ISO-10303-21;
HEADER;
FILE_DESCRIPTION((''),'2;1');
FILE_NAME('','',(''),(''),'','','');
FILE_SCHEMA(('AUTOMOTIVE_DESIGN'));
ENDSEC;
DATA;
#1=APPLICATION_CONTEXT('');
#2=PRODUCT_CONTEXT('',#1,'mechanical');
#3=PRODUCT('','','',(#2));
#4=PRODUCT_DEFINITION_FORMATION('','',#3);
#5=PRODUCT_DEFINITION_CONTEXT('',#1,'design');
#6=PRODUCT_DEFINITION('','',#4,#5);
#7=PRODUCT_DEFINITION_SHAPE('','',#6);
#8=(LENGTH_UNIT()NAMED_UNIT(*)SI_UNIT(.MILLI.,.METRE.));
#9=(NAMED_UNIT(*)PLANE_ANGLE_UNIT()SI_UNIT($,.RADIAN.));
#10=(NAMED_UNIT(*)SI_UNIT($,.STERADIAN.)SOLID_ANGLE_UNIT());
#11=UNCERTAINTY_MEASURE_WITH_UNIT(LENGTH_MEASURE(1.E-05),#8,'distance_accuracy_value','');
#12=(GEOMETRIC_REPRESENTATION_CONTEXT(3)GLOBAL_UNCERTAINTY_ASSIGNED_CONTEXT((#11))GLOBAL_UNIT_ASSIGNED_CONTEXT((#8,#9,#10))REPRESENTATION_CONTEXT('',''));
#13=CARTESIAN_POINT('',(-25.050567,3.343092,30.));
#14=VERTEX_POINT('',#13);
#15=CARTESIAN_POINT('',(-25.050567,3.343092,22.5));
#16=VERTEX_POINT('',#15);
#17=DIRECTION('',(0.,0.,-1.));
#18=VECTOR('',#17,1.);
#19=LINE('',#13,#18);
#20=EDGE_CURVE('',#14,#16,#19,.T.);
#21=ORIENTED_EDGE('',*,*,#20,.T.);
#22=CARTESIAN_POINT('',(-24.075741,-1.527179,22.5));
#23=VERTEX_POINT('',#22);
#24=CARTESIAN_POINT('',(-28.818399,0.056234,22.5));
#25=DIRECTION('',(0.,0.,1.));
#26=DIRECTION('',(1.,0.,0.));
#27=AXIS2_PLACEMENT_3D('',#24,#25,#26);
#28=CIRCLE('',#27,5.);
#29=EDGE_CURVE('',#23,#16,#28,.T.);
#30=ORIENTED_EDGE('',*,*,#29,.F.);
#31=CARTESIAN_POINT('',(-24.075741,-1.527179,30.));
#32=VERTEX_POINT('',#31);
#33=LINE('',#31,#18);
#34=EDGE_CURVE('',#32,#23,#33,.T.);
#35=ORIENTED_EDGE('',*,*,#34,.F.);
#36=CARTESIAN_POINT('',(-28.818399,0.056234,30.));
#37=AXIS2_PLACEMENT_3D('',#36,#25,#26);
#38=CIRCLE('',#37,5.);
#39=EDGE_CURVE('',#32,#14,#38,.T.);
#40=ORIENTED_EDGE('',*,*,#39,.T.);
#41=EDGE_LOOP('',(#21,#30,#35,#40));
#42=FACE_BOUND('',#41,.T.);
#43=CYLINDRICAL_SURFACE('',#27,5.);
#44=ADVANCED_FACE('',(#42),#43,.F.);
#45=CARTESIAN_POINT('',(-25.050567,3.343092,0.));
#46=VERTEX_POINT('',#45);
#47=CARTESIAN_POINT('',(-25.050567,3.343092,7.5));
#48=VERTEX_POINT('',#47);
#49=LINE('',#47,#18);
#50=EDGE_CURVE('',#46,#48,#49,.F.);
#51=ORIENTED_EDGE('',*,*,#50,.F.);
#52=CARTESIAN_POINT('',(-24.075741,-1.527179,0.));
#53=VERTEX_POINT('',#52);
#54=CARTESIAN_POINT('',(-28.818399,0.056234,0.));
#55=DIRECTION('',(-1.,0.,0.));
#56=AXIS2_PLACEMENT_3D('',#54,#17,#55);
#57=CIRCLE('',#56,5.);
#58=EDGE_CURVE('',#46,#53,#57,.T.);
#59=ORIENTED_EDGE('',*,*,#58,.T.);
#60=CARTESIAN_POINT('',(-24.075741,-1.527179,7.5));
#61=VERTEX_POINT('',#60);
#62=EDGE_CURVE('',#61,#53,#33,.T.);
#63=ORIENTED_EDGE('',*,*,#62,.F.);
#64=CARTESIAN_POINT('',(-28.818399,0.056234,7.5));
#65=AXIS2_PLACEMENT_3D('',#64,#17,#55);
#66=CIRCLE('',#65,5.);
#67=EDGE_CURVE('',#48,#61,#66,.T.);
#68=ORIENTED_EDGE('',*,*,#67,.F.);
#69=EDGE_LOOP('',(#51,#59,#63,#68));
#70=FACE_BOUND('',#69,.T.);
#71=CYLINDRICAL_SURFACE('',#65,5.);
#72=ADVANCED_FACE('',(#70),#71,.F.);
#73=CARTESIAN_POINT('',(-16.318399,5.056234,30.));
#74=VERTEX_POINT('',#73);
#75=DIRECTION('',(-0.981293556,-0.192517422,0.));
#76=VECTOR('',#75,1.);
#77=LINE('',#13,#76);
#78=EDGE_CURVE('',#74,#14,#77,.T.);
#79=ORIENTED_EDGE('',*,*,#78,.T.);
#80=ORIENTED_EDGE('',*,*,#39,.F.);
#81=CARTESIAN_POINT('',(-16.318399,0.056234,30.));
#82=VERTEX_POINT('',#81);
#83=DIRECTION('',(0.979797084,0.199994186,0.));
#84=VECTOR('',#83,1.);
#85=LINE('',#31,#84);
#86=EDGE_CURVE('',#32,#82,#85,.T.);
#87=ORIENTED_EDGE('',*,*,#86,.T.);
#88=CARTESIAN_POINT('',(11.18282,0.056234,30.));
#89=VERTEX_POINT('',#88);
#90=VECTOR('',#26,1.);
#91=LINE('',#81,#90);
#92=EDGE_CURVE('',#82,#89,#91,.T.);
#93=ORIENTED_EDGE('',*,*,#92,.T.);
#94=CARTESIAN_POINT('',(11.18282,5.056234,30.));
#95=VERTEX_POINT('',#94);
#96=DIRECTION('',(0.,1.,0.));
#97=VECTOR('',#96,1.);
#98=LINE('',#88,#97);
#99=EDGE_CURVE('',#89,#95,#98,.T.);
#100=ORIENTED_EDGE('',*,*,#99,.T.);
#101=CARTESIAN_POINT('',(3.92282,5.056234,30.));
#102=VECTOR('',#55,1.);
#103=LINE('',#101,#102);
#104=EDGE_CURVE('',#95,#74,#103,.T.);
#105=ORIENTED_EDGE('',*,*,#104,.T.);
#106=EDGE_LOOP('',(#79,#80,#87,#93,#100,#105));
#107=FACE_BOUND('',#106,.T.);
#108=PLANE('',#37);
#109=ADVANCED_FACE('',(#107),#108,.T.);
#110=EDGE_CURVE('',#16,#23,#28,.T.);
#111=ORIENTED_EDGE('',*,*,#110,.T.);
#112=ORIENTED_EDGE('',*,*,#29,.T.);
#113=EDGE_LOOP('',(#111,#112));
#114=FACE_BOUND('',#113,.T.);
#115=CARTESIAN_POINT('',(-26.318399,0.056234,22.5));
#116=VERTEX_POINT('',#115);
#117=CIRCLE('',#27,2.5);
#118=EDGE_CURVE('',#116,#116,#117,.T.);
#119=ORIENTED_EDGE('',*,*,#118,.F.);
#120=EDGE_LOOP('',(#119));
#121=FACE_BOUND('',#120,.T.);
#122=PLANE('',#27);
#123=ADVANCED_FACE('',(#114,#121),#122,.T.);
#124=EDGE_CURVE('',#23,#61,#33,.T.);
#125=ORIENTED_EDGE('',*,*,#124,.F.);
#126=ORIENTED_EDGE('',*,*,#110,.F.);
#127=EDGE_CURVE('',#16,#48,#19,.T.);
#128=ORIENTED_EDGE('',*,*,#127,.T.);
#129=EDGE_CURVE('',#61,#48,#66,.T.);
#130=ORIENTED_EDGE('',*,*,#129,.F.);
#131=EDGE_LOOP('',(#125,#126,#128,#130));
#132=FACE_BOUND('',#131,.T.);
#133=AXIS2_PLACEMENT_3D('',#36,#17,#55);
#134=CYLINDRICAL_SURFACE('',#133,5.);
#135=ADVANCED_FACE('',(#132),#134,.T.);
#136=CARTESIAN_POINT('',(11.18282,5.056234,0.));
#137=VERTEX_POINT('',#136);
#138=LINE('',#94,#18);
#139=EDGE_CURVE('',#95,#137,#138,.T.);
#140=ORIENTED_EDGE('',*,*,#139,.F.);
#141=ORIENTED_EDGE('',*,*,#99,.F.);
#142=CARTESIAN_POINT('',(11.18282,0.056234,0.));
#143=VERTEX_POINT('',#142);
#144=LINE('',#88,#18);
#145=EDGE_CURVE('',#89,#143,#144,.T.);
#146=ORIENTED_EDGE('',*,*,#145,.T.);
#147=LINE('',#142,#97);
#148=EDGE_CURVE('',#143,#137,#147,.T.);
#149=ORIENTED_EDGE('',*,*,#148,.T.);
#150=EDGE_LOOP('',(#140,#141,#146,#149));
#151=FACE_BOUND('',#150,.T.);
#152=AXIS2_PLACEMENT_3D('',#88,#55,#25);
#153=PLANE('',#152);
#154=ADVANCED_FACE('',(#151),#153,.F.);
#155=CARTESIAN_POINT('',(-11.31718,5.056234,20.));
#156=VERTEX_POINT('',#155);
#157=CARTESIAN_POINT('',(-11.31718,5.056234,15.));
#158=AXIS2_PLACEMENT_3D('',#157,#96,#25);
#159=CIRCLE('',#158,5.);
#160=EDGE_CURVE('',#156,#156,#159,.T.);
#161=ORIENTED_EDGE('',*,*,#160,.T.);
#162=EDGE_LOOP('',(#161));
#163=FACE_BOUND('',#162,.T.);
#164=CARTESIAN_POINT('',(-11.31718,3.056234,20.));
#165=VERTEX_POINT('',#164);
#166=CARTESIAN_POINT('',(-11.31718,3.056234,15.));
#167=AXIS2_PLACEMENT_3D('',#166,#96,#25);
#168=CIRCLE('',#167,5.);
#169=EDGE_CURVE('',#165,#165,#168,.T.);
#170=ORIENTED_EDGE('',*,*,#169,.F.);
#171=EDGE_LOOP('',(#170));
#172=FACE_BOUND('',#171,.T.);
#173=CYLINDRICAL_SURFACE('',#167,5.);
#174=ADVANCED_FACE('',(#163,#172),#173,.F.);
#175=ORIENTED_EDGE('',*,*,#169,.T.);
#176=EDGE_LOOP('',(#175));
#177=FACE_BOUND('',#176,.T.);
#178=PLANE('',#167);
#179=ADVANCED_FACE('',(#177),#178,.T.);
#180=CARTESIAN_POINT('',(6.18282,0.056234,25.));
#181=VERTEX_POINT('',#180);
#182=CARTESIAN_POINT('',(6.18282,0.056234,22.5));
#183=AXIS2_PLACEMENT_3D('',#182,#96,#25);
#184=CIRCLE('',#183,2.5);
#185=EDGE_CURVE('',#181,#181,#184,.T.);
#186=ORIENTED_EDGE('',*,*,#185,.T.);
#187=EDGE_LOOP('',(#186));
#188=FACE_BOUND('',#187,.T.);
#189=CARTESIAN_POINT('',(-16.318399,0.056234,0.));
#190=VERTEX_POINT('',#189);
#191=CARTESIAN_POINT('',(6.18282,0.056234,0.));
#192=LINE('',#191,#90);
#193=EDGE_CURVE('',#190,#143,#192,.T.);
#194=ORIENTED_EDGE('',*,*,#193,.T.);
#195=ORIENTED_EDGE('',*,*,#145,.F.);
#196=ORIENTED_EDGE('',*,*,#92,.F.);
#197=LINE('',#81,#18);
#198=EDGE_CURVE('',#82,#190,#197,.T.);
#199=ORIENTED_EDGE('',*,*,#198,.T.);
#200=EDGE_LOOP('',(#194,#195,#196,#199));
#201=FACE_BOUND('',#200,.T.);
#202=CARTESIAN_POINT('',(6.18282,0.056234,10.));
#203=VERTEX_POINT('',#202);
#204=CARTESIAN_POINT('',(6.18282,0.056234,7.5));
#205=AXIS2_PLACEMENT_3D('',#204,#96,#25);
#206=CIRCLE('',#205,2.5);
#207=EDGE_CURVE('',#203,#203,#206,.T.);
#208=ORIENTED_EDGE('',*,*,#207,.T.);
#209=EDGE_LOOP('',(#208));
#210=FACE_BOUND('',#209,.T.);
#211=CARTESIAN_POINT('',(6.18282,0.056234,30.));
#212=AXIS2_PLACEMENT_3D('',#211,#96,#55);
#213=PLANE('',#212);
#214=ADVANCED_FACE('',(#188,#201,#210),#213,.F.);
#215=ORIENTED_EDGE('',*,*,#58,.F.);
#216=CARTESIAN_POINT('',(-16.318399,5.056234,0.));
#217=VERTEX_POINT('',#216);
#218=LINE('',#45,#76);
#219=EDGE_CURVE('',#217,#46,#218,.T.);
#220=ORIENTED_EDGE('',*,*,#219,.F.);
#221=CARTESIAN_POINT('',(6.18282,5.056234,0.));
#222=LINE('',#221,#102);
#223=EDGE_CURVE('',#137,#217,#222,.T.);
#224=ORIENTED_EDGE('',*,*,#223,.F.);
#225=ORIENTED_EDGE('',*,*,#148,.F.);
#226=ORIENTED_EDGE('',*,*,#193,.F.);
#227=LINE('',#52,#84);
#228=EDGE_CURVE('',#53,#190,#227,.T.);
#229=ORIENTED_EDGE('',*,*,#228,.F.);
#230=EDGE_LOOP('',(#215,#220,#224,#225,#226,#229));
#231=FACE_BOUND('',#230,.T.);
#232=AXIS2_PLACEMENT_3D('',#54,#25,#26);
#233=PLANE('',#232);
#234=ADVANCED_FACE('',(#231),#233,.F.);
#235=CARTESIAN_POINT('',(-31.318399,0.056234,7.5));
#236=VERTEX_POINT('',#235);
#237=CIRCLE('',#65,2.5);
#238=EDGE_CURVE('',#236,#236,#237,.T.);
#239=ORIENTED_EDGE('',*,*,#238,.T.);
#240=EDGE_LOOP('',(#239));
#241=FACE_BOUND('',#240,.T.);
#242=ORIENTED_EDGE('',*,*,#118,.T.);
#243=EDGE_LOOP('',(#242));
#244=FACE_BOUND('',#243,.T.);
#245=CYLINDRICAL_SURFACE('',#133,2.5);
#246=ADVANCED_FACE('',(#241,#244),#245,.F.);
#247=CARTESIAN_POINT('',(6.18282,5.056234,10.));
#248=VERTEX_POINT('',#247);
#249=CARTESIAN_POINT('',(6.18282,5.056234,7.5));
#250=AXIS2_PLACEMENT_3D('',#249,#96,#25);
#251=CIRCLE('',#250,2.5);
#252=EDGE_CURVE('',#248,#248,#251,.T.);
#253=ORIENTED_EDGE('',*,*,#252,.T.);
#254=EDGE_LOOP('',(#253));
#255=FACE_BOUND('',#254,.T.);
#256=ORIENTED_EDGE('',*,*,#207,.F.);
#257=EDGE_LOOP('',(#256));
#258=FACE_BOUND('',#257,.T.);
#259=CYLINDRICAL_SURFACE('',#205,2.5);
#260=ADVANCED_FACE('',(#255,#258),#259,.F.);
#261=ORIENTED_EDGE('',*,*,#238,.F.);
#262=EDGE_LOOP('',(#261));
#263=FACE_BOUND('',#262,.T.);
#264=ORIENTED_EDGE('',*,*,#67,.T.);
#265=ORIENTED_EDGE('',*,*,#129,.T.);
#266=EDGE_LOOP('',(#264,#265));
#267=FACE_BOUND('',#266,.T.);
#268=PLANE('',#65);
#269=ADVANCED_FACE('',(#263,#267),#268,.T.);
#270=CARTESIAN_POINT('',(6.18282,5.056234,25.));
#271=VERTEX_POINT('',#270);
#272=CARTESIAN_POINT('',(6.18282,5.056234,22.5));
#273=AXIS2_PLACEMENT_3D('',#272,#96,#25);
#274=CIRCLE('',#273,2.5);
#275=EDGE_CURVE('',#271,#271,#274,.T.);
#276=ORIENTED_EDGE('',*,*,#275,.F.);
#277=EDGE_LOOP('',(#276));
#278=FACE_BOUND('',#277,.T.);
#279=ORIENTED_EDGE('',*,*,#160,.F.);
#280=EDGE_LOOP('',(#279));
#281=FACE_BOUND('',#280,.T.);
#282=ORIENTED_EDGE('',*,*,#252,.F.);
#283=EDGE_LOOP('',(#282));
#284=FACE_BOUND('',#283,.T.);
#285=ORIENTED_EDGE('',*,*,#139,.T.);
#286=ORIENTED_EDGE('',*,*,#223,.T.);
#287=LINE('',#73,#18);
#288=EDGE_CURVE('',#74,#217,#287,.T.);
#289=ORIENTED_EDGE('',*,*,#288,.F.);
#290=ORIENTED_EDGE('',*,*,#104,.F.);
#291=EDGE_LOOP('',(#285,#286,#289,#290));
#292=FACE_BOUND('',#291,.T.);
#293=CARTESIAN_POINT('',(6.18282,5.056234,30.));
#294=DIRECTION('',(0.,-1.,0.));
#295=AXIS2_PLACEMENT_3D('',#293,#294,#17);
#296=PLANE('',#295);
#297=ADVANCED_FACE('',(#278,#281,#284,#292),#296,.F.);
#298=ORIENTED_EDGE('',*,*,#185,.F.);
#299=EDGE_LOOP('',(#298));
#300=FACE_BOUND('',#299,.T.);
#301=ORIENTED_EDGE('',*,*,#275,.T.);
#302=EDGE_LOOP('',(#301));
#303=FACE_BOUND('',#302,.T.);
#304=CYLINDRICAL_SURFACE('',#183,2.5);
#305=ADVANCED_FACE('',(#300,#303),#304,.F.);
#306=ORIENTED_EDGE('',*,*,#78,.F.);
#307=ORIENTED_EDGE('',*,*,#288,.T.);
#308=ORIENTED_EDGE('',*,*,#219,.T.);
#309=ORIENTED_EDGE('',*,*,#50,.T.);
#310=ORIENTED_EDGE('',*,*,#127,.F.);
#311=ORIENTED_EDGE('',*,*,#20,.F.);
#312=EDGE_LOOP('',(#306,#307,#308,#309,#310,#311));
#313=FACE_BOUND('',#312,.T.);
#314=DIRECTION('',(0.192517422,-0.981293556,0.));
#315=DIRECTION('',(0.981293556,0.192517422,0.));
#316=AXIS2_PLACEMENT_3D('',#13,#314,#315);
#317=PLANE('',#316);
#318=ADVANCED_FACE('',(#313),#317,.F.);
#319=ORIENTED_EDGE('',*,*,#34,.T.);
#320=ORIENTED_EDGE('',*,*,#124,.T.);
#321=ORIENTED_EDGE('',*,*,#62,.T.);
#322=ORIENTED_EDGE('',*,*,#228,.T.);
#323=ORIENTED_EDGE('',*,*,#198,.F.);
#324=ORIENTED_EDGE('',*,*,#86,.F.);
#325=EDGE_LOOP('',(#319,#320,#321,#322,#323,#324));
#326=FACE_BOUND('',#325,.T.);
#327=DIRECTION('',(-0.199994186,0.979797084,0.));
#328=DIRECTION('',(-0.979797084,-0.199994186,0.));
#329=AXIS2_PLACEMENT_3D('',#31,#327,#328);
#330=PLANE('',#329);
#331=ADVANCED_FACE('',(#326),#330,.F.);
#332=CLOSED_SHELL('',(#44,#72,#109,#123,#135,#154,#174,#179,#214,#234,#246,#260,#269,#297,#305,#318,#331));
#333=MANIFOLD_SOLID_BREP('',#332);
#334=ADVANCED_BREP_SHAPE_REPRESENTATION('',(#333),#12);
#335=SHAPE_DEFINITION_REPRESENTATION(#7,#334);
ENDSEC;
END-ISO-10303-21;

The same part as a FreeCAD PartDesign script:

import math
import FreeCAD as App
import Part
import Sketcher

V = App.Vector

doc = App.newDocument("Part")
body = doc.addObject("PartDesign::Body", "Body")

sketch1 = body.newObject("Sketcher::SketchObject", "Sketch")
sketch1.AttachmentSupport = (doc.getObject("XY_Plane"), [""])
sketch1.MapMode = "FlatFace"
sketch1.addGeometry([
    Part.LineSegment(V(-16.318, 5.056, 0), V(-25.051, 3.343, 0)),
    Part.ArcOfCircle(Part.Circle(V(-28.818, 0.056, 0), V(0, 0, 1), 5), math.radians(41), math.radians(342)),
    Part.LineSegment(V(-24.076, -1.527, 0), V(-16.318, 0.056, 0)),
    Part.LineSegment(V(-16.318, 0.056, 0), V(11.183, 0.056, 0)),
    Part.LineSegment(V(11.183, 0.056, 0), V(11.183, 5.056, 0)),
    Part.LineSegment(V(11.183, 5.056, 0), V(-16.318, 5.056, 0)),
    Part.LineSegment(V(-28.337, -2.397, 0), V(-28.3, -2.389, 0)),
    Part.ArcOfCircle(Part.Circle(V(-28.818, 0.056, 0), V(0, 0, 1), 2.5), math.radians(-78.9), math.radians(-78.03)),
], False)
sketch1.addConstraint([
    Sketcher.Constraint("Coincident", 0, 2, 1, 1),
    Sketcher.Constraint("Coincident", 1, 2, 2, 1),
    Sketcher.Constraint("Coincident", 2, 2, 3, 1),
    Sketcher.Constraint("Coincident", 3, 2, 4, 1),
    Sketcher.Constraint("Coincident", 4, 2, 5, 1),
    Sketcher.Constraint("Coincident", 5, 2, 0, 1),
    Sketcher.Constraint("Coincident", 6, 1, 7, 1),
    Sketcher.Constraint("Coincident", 7, 2, 6, 2),
    Sketcher.Constraint("Horizontal", 3),
    Sketcher.Constraint("Vertical", 4),
    Sketcher.Constraint("Horizontal", 5),
    Sketcher.Constraint("Coincident", 7, 3, 1, 3),
    Sketcher.Constraint("Parallel", 2, 6),
    Sketcher.Constraint("Horizontal", 7, 3, 2, 2),
    Sketcher.Constraint("Vertical", 2, 2, 5, 2),
    Sketcher.Constraint("Radius", 1, 5.0),
    Sketcher.Constraint("Radius", 7, 2.499999),
    Sketcher.Constraint("DistanceY", 4, 1, 4, 2, 5.0),
    Sketcher.Constraint("DistanceX", 7, 3, 2, 2, 12.5),
    Sketcher.Constraint("DistanceY", 6, 1, -1, 1, 2.397),
    Sketcher.Constraint("DistanceX", 3, 1, 3, 2, 27.501219),
    Sketcher.Constraint("DistanceX", 1, 3, -1, 1, 28.818399),
    Sketcher.Constraint("Distance", 0, 8.89863),
    Sketcher.Constraint("DistanceX", 1, 2, -1, 1, 24.075741),
    Sketcher.Constraint("DistanceY", 1, 2, -1, 1, 1.527179),
])
pad1 = body.newObject("PartDesign::Pad", "Pad")
pad1.Profile = sketch1
pad1.Length = 30

sketch2 = body.newObject("Sketcher::SketchObject", "Sketch001")
sketch2.AttachmentSupport = (doc.getObject("XY_Plane"), [""])
sketch2.MapMode = "FlatFace"
sketch2.addGeometry(Part.Circle(V(-28.8, 0.1, 0), V(0, 0, 1), 2.5), False)
sketch2.addConstraint([
    Sketcher.Constraint("Diameter", 0, 5.0),
    Sketcher.Constraint("DistanceX", 0, 3, -1, 1, 28.818399),
    Sketcher.Constraint("DistanceY", -1, 1, 0, 3, 0.056234),
])
pocket1 = body.newObject("PartDesign::Pocket", "Pocket")
pocket1.Profile = sketch2
pocket1.Length = 30
pocket1.Reversed = True

sketch3 = body.newObject("Sketcher::SketchObject", "Sketch002")
sketch3.AttachmentSupport = (doc.getObject("XY_Plane"), [""])
sketch3.MapMode = "FlatFace"
sketch3.AttachmentOffset = App.Placement(V(0, 0, 22.5), App.Rotation())
sketch3.addGeometry(Part.Circle(V(-29, 0, 0), V(0, 0, 1), 5), False)
sketch3.addConstraint([
    Sketcher.Constraint("Diameter", 0, 10.0),
    Sketcher.Constraint("DistanceX", 0, 3, -1, 1, 28.818399),
    Sketcher.Constraint("DistanceY", -1, 1, 0, 3, 0.056234),
])
pocket2 = body.newObject("PartDesign::Pocket", "Pocket001")
pocket2.Profile = sketch3
pocket2.Length = 7.5
pocket2.Reversed = True

sketch4 = body.newObject("Sketcher::SketchObject", "Sketch003")
sketch4.AttachmentSupport = (doc.getObject("XY_Plane"), [""])
sketch4.MapMode = "FlatFace"
sketch4.addGeometry(Part.Circle(V(-29, 0, 0), V(0, 0, 1), 5), False)
sketch4.addConstraint([
    Sketcher.Constraint("Diameter", 0, 10.0),
    Sketcher.Constraint("DistanceX", 0, 3, -1, 1, 28.818399),
    Sketcher.Constraint("DistanceY", -1, 1, 0, 3, 0.056234),
])
pocket3 = body.newObject("PartDesign::Pocket", "Pocket002")
pocket3.Profile = sketch4
pocket3.Length = 7.5
pocket3.Reversed = True

sketch5 = body.newObject("Sketcher::SketchObject", "Sketch004")
sketch5.AttachmentSupport = (doc.getObject("XZ_Plane"), [""])
sketch5.MapMode = "FlatFace"
sketch5.AttachmentOffset = App.Placement(V(0, 0, -5.056234), App.Rotation())
sketch5.addGeometry(Part.Circle(V(-11, 15, 0), V(0, 0, 1), 5), False)
sketch5.addConstraint([
    Sketcher.Constraint("Diameter", 0, 10.0),
    Sketcher.Constraint("DistanceY", -1, 1, 0, 3, 15.0),
    Sketcher.Constraint("DistanceX", 0, 3, -1, 1, 11.31718),
])
pocket4 = body.newObject("PartDesign::Pocket", "Pocket003")
pocket4.Profile = sketch5
pocket4.Length = 2
pocket4.Reversed = True

sketch6 = body.newObject("Sketcher::SketchObject", "Sketch005")
sketch6.AttachmentSupport = (doc.getObject("XZ_Plane"), [""])
sketch6.MapMode = "FlatFace"
sketch6.AttachmentOffset = App.Placement(V(0, 0, -5.056234), App.Rotation())
sketch6.addGeometry([
    Part.Circle(V(6.2, 22.5, 0), V(0, 0, 1), 2.5),
    Part.Circle(V(6.2, 7.5, 0), V(0, 0, 1), 2.5),
], False)
sketch6.addConstraint([
    Sketcher.Constraint("Equal", 0, 1),
    Sketcher.Constraint("Vertical", 0, 3, 1, 3),
    Sketcher.Constraint("Diameter", 0, 5.0),
    Sketcher.Constraint("DistanceY", 1, 3, 0, 3, 15.0),
    Sketcher.Constraint("DistanceY", -1, 1, 0, 3, 22.5),
    Sketcher.Constraint("DistanceX", -1, 1, 0, 3, 6.18282),
])
pocket5 = body.newObject("PartDesign::Pocket", "Pocket004")
pocket5.Profile = sketch6
pocket5.Length = 5
pocket5.Reversed = True

doc.recompute()
